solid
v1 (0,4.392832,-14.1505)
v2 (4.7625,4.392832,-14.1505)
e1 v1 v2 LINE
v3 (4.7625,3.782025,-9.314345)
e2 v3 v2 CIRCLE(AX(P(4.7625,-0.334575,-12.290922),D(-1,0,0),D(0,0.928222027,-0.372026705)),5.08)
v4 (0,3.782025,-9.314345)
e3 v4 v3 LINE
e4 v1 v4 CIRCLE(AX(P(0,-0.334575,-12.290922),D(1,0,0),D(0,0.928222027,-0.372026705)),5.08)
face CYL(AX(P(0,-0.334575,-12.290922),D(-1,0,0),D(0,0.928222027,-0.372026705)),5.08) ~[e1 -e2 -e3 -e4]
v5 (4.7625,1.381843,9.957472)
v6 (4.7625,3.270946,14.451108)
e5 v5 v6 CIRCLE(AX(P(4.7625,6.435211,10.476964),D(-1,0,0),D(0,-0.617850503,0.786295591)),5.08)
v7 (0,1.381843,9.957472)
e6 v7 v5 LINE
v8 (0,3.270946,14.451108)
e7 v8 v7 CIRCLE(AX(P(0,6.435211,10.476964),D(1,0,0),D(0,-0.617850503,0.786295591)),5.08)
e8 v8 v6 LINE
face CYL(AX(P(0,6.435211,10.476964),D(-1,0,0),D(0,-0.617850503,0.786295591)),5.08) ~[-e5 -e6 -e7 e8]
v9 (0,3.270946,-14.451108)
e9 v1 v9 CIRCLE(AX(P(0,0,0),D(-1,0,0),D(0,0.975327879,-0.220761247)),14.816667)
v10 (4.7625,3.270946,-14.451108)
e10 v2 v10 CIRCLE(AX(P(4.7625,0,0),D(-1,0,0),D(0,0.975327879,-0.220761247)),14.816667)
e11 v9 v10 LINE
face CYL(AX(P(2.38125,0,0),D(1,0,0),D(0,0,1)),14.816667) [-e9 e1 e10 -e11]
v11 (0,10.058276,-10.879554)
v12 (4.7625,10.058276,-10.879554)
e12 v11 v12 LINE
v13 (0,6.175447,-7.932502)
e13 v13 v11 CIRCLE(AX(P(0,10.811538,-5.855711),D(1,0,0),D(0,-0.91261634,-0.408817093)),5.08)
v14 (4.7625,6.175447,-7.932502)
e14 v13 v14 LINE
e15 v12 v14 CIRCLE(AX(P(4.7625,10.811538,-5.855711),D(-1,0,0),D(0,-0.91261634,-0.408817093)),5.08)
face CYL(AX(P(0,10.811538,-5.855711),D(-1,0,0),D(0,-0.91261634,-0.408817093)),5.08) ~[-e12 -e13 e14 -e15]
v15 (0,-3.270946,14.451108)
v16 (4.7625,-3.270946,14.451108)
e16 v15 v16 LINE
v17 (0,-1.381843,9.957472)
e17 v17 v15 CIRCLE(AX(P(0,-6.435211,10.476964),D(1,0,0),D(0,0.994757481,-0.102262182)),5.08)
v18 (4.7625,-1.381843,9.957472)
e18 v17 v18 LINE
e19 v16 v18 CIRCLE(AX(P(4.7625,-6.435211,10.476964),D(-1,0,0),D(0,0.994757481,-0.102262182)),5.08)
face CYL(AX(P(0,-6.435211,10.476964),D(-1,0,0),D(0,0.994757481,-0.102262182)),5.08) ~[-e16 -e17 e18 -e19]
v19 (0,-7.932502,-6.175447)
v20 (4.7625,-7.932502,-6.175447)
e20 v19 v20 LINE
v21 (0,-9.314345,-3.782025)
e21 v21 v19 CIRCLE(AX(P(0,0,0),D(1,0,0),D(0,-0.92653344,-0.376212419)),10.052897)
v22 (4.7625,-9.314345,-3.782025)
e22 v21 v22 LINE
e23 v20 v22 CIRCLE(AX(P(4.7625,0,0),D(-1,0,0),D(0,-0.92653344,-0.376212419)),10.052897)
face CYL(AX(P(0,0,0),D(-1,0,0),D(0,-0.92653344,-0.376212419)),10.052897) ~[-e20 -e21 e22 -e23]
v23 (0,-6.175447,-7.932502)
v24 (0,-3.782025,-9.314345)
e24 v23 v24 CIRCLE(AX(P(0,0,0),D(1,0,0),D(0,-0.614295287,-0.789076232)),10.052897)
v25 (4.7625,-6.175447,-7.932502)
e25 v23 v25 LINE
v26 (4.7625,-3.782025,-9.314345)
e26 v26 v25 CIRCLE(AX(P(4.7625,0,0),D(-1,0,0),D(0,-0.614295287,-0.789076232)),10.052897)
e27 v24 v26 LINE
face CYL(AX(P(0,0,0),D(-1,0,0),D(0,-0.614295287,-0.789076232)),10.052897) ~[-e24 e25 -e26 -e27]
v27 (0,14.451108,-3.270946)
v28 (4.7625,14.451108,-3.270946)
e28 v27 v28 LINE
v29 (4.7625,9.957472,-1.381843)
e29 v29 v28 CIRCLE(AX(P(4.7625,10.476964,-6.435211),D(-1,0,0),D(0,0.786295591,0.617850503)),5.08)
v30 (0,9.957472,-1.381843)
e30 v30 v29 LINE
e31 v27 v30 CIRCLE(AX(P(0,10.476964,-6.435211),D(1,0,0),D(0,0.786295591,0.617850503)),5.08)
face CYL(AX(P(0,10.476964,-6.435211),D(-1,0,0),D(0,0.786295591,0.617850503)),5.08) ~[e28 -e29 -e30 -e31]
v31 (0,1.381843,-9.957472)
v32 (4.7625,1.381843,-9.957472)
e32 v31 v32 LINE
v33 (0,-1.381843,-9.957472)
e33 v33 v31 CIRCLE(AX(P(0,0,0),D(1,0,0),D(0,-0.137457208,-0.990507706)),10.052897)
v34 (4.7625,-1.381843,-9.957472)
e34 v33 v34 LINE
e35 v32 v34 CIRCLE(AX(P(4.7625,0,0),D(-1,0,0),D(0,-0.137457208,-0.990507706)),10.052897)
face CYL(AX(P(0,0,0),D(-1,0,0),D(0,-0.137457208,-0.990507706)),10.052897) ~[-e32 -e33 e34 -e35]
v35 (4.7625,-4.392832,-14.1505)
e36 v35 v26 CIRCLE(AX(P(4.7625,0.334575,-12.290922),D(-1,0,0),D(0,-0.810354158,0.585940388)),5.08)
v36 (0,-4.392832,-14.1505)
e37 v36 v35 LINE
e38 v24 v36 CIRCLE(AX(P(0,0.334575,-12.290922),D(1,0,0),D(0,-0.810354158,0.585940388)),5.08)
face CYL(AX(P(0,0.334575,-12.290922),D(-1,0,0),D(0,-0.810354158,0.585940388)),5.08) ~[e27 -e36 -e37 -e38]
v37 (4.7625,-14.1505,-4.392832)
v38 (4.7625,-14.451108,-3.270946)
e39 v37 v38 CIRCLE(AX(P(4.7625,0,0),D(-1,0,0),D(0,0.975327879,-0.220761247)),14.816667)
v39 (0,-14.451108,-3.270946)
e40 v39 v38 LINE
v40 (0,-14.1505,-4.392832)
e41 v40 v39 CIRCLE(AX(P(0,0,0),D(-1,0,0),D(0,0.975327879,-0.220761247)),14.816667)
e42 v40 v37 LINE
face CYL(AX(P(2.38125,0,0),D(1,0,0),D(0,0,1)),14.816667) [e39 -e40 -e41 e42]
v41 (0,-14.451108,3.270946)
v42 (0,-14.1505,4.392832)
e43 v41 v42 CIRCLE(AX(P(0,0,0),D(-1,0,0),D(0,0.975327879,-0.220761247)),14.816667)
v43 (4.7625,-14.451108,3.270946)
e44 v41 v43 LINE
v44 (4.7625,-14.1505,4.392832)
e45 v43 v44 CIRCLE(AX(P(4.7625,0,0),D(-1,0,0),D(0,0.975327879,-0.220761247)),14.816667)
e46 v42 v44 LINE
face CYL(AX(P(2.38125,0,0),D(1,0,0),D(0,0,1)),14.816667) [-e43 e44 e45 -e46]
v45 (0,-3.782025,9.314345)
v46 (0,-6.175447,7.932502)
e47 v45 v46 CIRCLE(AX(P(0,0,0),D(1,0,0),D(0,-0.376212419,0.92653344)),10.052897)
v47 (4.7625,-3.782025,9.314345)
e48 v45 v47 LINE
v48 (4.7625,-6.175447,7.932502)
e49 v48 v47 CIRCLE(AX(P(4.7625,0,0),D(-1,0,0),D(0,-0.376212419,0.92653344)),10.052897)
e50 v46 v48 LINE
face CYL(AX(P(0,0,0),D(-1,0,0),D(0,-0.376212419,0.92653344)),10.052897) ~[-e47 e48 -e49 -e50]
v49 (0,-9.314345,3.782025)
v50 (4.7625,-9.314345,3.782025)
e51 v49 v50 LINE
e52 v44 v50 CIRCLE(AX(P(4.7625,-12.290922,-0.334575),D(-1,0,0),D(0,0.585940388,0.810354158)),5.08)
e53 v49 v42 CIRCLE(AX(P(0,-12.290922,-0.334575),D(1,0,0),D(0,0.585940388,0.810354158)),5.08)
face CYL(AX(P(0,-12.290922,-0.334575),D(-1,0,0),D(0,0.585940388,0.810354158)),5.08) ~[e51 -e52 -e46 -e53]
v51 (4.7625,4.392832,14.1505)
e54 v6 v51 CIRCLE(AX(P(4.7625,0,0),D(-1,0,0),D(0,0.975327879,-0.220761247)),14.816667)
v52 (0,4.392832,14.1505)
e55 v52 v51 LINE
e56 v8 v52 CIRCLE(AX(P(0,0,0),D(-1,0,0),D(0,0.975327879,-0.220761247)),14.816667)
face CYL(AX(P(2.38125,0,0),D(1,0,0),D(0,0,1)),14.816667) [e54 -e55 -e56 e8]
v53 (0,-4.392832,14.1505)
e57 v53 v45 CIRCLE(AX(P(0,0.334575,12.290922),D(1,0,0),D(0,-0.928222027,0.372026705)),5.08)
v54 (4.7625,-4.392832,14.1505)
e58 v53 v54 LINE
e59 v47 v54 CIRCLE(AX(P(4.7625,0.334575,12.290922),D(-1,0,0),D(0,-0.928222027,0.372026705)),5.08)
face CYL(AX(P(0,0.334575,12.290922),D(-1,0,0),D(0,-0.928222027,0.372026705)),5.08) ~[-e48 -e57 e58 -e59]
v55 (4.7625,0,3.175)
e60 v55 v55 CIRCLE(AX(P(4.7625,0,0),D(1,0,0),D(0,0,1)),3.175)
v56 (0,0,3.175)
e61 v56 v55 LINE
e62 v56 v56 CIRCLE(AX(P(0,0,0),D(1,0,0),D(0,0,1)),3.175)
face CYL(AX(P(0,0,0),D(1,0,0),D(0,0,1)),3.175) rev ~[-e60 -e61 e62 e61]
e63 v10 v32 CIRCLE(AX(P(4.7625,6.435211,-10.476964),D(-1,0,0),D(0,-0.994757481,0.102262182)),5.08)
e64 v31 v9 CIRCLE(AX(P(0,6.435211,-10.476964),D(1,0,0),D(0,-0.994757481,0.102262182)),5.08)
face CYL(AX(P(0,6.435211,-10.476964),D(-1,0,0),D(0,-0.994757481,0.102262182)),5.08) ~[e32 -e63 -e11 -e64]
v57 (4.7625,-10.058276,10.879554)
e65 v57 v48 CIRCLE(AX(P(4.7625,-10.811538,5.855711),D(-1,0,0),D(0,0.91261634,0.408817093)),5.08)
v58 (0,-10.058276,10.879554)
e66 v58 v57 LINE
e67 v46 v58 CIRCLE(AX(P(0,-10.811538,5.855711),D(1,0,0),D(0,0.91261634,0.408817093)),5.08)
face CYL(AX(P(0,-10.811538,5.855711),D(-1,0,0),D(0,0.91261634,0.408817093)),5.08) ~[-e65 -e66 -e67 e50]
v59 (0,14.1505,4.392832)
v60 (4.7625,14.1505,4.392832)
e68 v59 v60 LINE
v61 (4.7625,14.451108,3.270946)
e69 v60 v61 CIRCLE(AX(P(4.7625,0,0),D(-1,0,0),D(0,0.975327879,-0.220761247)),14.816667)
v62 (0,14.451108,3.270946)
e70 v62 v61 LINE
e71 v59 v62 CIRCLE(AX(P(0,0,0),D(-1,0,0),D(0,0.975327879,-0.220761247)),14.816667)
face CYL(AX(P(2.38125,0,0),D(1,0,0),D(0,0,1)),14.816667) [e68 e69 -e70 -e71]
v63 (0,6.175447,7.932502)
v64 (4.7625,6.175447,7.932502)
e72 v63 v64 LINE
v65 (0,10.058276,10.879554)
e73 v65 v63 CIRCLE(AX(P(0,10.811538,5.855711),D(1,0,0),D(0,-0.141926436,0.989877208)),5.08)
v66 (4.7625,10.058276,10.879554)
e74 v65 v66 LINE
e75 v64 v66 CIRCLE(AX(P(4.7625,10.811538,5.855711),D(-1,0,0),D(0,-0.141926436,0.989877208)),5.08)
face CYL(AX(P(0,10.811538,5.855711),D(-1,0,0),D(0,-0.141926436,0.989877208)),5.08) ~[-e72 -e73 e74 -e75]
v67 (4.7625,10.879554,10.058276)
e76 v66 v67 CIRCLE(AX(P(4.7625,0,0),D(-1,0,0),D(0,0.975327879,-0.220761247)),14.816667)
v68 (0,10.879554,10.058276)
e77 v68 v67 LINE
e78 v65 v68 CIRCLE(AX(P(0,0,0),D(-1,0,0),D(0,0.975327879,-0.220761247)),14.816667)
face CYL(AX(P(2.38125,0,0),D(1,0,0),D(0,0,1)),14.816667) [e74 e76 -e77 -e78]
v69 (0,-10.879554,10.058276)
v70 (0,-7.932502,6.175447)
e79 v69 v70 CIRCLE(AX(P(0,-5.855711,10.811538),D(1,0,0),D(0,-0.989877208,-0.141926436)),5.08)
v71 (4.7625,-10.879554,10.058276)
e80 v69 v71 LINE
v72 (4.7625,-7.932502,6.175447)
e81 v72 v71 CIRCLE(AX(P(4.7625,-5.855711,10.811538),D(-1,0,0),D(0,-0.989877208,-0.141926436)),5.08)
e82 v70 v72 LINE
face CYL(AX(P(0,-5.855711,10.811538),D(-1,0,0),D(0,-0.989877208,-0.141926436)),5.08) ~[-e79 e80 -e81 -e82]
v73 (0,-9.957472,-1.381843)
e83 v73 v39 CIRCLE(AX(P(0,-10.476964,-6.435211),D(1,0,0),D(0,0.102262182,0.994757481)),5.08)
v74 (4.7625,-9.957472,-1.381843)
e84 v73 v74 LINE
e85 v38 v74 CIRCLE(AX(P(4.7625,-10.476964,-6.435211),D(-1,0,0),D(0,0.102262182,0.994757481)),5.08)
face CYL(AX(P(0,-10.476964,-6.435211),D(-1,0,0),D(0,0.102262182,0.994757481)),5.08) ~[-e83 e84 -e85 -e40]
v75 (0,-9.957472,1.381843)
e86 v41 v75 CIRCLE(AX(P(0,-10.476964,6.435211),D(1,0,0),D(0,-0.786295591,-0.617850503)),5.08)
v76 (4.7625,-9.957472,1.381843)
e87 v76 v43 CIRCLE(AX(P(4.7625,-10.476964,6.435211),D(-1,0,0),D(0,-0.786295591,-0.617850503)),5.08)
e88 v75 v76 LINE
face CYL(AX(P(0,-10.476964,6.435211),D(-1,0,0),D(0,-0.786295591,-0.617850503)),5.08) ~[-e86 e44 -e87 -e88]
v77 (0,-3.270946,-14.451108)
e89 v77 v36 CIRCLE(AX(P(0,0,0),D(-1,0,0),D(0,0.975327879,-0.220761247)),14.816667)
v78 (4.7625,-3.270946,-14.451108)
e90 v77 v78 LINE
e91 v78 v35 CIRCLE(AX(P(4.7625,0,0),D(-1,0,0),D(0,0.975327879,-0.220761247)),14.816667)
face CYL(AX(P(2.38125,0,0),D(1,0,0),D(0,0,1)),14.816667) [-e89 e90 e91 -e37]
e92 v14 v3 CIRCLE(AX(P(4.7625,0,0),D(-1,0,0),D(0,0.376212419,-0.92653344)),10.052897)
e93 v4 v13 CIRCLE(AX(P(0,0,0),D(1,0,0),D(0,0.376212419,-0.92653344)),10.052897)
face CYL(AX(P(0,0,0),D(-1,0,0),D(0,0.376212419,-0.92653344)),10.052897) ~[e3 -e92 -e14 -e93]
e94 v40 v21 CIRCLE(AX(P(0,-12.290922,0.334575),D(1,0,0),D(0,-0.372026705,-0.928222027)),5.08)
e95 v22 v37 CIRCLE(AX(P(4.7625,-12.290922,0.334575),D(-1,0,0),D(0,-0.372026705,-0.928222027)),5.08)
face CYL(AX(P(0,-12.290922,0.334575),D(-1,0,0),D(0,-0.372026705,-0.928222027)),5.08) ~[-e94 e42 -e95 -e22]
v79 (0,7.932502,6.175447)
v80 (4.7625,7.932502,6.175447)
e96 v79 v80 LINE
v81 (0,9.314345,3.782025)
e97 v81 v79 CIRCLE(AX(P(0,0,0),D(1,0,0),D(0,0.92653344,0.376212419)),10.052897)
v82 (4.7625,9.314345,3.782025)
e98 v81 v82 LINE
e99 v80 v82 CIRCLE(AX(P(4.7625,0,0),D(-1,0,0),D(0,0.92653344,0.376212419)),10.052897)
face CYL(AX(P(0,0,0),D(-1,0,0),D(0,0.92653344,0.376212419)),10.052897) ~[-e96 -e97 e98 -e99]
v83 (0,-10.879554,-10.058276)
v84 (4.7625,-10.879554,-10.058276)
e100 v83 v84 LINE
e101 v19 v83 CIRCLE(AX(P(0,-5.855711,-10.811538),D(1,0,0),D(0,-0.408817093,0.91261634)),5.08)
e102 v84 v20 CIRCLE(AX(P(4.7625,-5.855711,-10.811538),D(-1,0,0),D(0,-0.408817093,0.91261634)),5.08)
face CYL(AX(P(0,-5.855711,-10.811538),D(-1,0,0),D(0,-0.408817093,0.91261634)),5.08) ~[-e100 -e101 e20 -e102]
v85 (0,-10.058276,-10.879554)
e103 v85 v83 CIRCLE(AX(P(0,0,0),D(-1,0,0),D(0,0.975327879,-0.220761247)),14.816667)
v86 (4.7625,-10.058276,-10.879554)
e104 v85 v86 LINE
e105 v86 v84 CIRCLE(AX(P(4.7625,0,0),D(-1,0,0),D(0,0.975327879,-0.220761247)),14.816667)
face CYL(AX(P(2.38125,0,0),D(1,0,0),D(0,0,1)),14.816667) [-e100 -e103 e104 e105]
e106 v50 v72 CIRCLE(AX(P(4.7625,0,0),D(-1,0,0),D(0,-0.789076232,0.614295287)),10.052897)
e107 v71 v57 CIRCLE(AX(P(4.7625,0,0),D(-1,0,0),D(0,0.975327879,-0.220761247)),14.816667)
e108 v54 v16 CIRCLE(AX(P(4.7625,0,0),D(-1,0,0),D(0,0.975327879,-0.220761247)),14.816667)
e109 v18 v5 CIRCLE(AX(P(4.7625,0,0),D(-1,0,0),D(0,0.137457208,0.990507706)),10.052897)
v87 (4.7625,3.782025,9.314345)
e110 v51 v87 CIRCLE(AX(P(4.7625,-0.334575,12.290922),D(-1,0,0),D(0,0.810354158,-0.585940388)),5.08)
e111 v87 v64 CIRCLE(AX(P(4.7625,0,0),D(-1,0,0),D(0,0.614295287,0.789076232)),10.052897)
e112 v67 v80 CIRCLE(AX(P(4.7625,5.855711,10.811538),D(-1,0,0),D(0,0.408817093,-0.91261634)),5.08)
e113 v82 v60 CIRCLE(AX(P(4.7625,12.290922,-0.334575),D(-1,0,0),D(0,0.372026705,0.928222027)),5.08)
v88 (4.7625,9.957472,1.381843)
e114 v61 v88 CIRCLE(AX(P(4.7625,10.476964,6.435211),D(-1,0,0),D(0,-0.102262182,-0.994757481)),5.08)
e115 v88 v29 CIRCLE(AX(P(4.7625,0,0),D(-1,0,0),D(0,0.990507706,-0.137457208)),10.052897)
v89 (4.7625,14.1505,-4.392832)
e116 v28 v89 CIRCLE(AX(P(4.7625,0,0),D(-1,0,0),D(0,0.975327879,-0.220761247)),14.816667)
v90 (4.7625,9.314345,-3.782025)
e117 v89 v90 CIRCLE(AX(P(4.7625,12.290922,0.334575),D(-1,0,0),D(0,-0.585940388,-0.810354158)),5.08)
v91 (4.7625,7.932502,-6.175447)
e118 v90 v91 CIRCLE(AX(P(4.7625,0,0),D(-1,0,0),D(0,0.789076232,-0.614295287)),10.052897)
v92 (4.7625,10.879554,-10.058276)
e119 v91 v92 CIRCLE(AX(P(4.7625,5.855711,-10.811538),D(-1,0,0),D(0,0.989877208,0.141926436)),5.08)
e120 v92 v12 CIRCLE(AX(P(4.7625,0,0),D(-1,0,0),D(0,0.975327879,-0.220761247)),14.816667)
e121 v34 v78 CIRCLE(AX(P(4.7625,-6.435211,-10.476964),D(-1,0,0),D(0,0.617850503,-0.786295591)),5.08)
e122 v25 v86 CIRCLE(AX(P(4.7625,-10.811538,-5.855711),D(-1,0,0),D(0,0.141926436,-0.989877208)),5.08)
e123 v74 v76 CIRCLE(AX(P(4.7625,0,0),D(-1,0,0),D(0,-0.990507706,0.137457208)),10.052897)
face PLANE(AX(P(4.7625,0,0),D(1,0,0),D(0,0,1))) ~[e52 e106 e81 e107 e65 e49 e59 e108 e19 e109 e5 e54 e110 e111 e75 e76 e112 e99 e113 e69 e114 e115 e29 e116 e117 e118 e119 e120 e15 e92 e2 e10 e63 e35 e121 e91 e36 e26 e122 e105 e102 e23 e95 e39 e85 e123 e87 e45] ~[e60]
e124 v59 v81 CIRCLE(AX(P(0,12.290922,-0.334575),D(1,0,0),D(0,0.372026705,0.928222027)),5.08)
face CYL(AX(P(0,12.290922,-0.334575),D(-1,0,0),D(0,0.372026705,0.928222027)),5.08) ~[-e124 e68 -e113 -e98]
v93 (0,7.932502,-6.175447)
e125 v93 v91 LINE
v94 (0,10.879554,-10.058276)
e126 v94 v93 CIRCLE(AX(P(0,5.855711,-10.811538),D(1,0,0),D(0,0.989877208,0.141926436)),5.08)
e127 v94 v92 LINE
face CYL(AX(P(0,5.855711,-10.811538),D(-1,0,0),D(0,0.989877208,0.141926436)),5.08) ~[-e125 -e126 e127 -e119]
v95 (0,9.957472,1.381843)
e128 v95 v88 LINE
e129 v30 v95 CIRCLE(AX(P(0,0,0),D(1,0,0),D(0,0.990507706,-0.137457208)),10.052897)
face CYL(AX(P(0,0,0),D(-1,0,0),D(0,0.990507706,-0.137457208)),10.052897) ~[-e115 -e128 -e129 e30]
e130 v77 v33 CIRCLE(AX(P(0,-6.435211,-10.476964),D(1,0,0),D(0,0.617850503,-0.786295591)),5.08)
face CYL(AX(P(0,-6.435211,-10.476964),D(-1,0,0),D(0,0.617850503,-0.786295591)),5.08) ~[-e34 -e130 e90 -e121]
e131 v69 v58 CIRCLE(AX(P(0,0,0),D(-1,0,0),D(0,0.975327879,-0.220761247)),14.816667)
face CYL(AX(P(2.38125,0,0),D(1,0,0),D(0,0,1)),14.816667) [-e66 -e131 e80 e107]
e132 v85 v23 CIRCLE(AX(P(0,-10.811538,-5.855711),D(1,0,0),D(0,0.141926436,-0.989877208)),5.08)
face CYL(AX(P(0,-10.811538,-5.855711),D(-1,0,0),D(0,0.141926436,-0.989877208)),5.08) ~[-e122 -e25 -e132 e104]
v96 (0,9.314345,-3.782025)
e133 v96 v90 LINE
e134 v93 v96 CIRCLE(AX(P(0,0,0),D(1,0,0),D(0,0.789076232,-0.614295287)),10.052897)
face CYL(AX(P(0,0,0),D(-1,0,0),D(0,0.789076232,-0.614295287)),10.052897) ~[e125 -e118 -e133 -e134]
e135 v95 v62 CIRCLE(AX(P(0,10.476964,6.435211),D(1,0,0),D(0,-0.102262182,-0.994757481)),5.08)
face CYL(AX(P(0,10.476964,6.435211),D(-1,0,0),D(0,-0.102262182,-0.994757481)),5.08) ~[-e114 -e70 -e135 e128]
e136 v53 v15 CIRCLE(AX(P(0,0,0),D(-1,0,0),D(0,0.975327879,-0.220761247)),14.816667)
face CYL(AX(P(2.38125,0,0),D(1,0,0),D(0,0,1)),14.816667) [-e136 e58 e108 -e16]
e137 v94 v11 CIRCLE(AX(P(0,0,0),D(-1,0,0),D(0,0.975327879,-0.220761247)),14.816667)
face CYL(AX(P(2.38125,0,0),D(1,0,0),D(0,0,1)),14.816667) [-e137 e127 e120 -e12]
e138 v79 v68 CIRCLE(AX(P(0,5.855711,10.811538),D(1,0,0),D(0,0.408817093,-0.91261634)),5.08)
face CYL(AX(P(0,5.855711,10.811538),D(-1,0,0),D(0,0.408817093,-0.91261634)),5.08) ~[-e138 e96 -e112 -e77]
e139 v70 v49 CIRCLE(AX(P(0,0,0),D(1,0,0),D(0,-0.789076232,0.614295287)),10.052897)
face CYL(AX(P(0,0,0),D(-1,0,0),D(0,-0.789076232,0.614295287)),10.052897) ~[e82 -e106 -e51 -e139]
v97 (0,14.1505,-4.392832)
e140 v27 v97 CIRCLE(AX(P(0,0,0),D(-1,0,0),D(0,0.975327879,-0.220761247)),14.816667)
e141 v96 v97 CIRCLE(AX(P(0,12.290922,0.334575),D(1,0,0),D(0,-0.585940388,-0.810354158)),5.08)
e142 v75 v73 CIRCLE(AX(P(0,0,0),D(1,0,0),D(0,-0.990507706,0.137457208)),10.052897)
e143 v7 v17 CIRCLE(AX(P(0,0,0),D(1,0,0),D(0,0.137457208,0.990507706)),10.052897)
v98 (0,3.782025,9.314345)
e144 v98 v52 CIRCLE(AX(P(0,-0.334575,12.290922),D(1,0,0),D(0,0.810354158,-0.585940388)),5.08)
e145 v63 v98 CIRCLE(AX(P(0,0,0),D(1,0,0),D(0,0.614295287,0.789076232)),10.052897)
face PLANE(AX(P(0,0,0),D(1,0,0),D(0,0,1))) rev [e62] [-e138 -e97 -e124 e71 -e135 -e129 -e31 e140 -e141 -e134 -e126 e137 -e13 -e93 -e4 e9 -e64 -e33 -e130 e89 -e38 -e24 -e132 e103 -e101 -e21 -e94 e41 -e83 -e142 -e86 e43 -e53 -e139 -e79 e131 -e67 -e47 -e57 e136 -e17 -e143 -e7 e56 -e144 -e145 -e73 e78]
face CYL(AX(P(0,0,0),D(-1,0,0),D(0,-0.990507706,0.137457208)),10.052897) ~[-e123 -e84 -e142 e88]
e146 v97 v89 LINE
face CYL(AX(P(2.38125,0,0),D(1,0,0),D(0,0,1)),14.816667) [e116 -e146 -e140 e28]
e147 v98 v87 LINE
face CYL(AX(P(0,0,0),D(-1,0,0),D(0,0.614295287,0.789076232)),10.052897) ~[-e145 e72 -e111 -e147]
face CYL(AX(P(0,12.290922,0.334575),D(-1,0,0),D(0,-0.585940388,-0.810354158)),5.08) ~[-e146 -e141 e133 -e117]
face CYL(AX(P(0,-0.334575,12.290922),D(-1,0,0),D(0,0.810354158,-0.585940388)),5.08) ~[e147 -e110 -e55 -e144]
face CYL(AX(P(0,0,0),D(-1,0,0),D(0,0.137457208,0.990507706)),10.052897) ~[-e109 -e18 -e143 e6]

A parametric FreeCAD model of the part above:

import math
import FreeCAD as App
import Part
import Sketcher

V = App.Vector
Q = App.Units.Quantity


def add_polygon(sketch, points):
    """Adds a closed chain of lines whose ends are joined by coincident constraints."""
    first, n = sketch.GeometryCount, len(points)
    for a, b in zip(points, points[1:] + points[:1]):
        sketch.addGeometry(Part.LineSegment(App.Vector(*a, 0), App.Vector(*b, 0)), False)
    for i in range(n):
        sketch.addConstraint(Sketcher.Constraint("Coincident", first + i, 2, first + (i + 1) % n, 1))

doc = App.newDocument("Part")
body = doc.addObject("PartDesign::Body", "Body")

# Sketch on XZ plane
sketch1 = body.newObject("Sketcher::SketchObject", "Sketch")
sketch1.AttachmentSupport = (doc.getObject("XZ_Plane"), [""])
sketch1.MapMode = "FlatFace"
add_polygon(sketch1, [(0, -14.8), (0, 0), (4.8, 0), (4.8, -14.8)])  # lines 0-3
sketch1.addConstraint([
    Sketcher.Constraint("Vertical", 0),
    Sketcher.Constraint("Horizontal", 1),
    Sketcher.Constraint("Vertical", 2),
    Sketcher.Constraint("Horizontal", 3),
    Sketcher.Constraint("Coincident", 0, 2, -1, 1),
    Sketcher.Constraint("DistanceX", 1, 1, 1, 2, Q("0.1875 in")),
    Sketcher.Constraint("DistanceY", 0, 1, 0, 2, 14.816667),
])
revolution = body.newObject("PartDesign::Revolution", "Revolution")
revolution.Profile = sketch1
revolution.ReferenceAxis = (sketch1, ["H_Axis"])
revolution.Angle = 360

# Sketch on YZ plane
sketch2 = body.newObject("Sketcher::SketchObject", "Sketch001")
sketch2.AttachmentSupport = (doc.getObject("YZ_Plane"), [""])
sketch2.MapMode = "FlatFace"
sketch2.addGeometry([
    Part.ArcOfCircle(Part.Circle(V(0, 0, 0), V(0, 0, 1), 10.1), math.radians(-7.9), math.radians(7.9)),
    Part.ArcOfCircle(Part.Circle(V(10.5, -6.4, 0), V(0, 0, 1), 5.1), math.radians(38), math.radians(96)),
    Part.ArcOfCircle(Part.Circle(V(0, 0, 0), V(0, 0, 1), 14.8), math.radians(-13), math.radians(13)),
    Part.ArcOfCircle(Part.Circle(V(10.5, 6.4, 0), V(0, 0, 1), 5.1), math.radians(-96), math.radians(-38)),
], False)
sketch2.addConstraint([
    Sketcher.Constraint("Coincident", 0, 1, 1, 2),
    Sketcher.Constraint("Coincident", 1, 1, 2, 1),
    Sketcher.Constraint("Coincident", 2, 2, 3, 2),
    Sketcher.Constraint("Coincident", 3, 1, 0, 2),
    Sketcher.Constraint("Coincident", 0, 3, -1, 1),
    Sketcher.Constraint("Coincident", 2, 3, -1, 1),
    Sketcher.Constraint("Equal", 1, 3),
    Sketcher.Constraint("Symmetric", 1, 3, 3, 3, -1),
    Sketcher.Constraint("Radius", 1, Q("0.2 in")),
    Sketcher.Constraint("Radius", 0, 10.052897),
    Sketcher.Constraint("Radius", 2, 14.842067),
    Sketcher.Constraint("DistanceY", 1, 3, -1, 1, 6.435211),
    Sketcher.Constraint("DistanceX", -1, 1, 0, 1, 9.957472),
])
pocket1 = body.newObject("PartDesign::Pocket", "Pocket")
pocket1.Profile = sketch2
pocket1.Type = "ThroughAll"
pocket1.Reversed = True
doc.recompute()

polarpattern = body.newObject("PartDesign::PolarPattern", "PolarPattern")
polarpattern.Originals = [pocket1]
polarpattern.Axis = (doc.getObject("X_Axis"), [""])
polarpattern.Angle = 360
polarpattern.Occurrences = 12
body.Tip = polarpattern

# Sketch on YZ plane
sketch3 = body.newObject("Sketcher::SketchObject", "Sketch002")
sketch3.AttachmentSupport = (doc.getObject("YZ_Plane"), [""])
sketch3.MapMode = "FlatFace"
sketch3.addGeometry(Part.Circle(V(0, 0, 0), V(0, 0, 1), 3.2), False)
sketch3.addConstraint([
    Sketcher.Constraint("Coincident", 0, 3, -1, 1),
    Sketcher.Constraint("Diameter", 0, Q("0.25 in")),
])
pocket2 = body.newObject("PartDesign::Pocket", "Pocket001")
pocket2.Profile = sketch3
pocket2.Length = 101.600102
pocket2.Midplane = True

doc.recompute()
